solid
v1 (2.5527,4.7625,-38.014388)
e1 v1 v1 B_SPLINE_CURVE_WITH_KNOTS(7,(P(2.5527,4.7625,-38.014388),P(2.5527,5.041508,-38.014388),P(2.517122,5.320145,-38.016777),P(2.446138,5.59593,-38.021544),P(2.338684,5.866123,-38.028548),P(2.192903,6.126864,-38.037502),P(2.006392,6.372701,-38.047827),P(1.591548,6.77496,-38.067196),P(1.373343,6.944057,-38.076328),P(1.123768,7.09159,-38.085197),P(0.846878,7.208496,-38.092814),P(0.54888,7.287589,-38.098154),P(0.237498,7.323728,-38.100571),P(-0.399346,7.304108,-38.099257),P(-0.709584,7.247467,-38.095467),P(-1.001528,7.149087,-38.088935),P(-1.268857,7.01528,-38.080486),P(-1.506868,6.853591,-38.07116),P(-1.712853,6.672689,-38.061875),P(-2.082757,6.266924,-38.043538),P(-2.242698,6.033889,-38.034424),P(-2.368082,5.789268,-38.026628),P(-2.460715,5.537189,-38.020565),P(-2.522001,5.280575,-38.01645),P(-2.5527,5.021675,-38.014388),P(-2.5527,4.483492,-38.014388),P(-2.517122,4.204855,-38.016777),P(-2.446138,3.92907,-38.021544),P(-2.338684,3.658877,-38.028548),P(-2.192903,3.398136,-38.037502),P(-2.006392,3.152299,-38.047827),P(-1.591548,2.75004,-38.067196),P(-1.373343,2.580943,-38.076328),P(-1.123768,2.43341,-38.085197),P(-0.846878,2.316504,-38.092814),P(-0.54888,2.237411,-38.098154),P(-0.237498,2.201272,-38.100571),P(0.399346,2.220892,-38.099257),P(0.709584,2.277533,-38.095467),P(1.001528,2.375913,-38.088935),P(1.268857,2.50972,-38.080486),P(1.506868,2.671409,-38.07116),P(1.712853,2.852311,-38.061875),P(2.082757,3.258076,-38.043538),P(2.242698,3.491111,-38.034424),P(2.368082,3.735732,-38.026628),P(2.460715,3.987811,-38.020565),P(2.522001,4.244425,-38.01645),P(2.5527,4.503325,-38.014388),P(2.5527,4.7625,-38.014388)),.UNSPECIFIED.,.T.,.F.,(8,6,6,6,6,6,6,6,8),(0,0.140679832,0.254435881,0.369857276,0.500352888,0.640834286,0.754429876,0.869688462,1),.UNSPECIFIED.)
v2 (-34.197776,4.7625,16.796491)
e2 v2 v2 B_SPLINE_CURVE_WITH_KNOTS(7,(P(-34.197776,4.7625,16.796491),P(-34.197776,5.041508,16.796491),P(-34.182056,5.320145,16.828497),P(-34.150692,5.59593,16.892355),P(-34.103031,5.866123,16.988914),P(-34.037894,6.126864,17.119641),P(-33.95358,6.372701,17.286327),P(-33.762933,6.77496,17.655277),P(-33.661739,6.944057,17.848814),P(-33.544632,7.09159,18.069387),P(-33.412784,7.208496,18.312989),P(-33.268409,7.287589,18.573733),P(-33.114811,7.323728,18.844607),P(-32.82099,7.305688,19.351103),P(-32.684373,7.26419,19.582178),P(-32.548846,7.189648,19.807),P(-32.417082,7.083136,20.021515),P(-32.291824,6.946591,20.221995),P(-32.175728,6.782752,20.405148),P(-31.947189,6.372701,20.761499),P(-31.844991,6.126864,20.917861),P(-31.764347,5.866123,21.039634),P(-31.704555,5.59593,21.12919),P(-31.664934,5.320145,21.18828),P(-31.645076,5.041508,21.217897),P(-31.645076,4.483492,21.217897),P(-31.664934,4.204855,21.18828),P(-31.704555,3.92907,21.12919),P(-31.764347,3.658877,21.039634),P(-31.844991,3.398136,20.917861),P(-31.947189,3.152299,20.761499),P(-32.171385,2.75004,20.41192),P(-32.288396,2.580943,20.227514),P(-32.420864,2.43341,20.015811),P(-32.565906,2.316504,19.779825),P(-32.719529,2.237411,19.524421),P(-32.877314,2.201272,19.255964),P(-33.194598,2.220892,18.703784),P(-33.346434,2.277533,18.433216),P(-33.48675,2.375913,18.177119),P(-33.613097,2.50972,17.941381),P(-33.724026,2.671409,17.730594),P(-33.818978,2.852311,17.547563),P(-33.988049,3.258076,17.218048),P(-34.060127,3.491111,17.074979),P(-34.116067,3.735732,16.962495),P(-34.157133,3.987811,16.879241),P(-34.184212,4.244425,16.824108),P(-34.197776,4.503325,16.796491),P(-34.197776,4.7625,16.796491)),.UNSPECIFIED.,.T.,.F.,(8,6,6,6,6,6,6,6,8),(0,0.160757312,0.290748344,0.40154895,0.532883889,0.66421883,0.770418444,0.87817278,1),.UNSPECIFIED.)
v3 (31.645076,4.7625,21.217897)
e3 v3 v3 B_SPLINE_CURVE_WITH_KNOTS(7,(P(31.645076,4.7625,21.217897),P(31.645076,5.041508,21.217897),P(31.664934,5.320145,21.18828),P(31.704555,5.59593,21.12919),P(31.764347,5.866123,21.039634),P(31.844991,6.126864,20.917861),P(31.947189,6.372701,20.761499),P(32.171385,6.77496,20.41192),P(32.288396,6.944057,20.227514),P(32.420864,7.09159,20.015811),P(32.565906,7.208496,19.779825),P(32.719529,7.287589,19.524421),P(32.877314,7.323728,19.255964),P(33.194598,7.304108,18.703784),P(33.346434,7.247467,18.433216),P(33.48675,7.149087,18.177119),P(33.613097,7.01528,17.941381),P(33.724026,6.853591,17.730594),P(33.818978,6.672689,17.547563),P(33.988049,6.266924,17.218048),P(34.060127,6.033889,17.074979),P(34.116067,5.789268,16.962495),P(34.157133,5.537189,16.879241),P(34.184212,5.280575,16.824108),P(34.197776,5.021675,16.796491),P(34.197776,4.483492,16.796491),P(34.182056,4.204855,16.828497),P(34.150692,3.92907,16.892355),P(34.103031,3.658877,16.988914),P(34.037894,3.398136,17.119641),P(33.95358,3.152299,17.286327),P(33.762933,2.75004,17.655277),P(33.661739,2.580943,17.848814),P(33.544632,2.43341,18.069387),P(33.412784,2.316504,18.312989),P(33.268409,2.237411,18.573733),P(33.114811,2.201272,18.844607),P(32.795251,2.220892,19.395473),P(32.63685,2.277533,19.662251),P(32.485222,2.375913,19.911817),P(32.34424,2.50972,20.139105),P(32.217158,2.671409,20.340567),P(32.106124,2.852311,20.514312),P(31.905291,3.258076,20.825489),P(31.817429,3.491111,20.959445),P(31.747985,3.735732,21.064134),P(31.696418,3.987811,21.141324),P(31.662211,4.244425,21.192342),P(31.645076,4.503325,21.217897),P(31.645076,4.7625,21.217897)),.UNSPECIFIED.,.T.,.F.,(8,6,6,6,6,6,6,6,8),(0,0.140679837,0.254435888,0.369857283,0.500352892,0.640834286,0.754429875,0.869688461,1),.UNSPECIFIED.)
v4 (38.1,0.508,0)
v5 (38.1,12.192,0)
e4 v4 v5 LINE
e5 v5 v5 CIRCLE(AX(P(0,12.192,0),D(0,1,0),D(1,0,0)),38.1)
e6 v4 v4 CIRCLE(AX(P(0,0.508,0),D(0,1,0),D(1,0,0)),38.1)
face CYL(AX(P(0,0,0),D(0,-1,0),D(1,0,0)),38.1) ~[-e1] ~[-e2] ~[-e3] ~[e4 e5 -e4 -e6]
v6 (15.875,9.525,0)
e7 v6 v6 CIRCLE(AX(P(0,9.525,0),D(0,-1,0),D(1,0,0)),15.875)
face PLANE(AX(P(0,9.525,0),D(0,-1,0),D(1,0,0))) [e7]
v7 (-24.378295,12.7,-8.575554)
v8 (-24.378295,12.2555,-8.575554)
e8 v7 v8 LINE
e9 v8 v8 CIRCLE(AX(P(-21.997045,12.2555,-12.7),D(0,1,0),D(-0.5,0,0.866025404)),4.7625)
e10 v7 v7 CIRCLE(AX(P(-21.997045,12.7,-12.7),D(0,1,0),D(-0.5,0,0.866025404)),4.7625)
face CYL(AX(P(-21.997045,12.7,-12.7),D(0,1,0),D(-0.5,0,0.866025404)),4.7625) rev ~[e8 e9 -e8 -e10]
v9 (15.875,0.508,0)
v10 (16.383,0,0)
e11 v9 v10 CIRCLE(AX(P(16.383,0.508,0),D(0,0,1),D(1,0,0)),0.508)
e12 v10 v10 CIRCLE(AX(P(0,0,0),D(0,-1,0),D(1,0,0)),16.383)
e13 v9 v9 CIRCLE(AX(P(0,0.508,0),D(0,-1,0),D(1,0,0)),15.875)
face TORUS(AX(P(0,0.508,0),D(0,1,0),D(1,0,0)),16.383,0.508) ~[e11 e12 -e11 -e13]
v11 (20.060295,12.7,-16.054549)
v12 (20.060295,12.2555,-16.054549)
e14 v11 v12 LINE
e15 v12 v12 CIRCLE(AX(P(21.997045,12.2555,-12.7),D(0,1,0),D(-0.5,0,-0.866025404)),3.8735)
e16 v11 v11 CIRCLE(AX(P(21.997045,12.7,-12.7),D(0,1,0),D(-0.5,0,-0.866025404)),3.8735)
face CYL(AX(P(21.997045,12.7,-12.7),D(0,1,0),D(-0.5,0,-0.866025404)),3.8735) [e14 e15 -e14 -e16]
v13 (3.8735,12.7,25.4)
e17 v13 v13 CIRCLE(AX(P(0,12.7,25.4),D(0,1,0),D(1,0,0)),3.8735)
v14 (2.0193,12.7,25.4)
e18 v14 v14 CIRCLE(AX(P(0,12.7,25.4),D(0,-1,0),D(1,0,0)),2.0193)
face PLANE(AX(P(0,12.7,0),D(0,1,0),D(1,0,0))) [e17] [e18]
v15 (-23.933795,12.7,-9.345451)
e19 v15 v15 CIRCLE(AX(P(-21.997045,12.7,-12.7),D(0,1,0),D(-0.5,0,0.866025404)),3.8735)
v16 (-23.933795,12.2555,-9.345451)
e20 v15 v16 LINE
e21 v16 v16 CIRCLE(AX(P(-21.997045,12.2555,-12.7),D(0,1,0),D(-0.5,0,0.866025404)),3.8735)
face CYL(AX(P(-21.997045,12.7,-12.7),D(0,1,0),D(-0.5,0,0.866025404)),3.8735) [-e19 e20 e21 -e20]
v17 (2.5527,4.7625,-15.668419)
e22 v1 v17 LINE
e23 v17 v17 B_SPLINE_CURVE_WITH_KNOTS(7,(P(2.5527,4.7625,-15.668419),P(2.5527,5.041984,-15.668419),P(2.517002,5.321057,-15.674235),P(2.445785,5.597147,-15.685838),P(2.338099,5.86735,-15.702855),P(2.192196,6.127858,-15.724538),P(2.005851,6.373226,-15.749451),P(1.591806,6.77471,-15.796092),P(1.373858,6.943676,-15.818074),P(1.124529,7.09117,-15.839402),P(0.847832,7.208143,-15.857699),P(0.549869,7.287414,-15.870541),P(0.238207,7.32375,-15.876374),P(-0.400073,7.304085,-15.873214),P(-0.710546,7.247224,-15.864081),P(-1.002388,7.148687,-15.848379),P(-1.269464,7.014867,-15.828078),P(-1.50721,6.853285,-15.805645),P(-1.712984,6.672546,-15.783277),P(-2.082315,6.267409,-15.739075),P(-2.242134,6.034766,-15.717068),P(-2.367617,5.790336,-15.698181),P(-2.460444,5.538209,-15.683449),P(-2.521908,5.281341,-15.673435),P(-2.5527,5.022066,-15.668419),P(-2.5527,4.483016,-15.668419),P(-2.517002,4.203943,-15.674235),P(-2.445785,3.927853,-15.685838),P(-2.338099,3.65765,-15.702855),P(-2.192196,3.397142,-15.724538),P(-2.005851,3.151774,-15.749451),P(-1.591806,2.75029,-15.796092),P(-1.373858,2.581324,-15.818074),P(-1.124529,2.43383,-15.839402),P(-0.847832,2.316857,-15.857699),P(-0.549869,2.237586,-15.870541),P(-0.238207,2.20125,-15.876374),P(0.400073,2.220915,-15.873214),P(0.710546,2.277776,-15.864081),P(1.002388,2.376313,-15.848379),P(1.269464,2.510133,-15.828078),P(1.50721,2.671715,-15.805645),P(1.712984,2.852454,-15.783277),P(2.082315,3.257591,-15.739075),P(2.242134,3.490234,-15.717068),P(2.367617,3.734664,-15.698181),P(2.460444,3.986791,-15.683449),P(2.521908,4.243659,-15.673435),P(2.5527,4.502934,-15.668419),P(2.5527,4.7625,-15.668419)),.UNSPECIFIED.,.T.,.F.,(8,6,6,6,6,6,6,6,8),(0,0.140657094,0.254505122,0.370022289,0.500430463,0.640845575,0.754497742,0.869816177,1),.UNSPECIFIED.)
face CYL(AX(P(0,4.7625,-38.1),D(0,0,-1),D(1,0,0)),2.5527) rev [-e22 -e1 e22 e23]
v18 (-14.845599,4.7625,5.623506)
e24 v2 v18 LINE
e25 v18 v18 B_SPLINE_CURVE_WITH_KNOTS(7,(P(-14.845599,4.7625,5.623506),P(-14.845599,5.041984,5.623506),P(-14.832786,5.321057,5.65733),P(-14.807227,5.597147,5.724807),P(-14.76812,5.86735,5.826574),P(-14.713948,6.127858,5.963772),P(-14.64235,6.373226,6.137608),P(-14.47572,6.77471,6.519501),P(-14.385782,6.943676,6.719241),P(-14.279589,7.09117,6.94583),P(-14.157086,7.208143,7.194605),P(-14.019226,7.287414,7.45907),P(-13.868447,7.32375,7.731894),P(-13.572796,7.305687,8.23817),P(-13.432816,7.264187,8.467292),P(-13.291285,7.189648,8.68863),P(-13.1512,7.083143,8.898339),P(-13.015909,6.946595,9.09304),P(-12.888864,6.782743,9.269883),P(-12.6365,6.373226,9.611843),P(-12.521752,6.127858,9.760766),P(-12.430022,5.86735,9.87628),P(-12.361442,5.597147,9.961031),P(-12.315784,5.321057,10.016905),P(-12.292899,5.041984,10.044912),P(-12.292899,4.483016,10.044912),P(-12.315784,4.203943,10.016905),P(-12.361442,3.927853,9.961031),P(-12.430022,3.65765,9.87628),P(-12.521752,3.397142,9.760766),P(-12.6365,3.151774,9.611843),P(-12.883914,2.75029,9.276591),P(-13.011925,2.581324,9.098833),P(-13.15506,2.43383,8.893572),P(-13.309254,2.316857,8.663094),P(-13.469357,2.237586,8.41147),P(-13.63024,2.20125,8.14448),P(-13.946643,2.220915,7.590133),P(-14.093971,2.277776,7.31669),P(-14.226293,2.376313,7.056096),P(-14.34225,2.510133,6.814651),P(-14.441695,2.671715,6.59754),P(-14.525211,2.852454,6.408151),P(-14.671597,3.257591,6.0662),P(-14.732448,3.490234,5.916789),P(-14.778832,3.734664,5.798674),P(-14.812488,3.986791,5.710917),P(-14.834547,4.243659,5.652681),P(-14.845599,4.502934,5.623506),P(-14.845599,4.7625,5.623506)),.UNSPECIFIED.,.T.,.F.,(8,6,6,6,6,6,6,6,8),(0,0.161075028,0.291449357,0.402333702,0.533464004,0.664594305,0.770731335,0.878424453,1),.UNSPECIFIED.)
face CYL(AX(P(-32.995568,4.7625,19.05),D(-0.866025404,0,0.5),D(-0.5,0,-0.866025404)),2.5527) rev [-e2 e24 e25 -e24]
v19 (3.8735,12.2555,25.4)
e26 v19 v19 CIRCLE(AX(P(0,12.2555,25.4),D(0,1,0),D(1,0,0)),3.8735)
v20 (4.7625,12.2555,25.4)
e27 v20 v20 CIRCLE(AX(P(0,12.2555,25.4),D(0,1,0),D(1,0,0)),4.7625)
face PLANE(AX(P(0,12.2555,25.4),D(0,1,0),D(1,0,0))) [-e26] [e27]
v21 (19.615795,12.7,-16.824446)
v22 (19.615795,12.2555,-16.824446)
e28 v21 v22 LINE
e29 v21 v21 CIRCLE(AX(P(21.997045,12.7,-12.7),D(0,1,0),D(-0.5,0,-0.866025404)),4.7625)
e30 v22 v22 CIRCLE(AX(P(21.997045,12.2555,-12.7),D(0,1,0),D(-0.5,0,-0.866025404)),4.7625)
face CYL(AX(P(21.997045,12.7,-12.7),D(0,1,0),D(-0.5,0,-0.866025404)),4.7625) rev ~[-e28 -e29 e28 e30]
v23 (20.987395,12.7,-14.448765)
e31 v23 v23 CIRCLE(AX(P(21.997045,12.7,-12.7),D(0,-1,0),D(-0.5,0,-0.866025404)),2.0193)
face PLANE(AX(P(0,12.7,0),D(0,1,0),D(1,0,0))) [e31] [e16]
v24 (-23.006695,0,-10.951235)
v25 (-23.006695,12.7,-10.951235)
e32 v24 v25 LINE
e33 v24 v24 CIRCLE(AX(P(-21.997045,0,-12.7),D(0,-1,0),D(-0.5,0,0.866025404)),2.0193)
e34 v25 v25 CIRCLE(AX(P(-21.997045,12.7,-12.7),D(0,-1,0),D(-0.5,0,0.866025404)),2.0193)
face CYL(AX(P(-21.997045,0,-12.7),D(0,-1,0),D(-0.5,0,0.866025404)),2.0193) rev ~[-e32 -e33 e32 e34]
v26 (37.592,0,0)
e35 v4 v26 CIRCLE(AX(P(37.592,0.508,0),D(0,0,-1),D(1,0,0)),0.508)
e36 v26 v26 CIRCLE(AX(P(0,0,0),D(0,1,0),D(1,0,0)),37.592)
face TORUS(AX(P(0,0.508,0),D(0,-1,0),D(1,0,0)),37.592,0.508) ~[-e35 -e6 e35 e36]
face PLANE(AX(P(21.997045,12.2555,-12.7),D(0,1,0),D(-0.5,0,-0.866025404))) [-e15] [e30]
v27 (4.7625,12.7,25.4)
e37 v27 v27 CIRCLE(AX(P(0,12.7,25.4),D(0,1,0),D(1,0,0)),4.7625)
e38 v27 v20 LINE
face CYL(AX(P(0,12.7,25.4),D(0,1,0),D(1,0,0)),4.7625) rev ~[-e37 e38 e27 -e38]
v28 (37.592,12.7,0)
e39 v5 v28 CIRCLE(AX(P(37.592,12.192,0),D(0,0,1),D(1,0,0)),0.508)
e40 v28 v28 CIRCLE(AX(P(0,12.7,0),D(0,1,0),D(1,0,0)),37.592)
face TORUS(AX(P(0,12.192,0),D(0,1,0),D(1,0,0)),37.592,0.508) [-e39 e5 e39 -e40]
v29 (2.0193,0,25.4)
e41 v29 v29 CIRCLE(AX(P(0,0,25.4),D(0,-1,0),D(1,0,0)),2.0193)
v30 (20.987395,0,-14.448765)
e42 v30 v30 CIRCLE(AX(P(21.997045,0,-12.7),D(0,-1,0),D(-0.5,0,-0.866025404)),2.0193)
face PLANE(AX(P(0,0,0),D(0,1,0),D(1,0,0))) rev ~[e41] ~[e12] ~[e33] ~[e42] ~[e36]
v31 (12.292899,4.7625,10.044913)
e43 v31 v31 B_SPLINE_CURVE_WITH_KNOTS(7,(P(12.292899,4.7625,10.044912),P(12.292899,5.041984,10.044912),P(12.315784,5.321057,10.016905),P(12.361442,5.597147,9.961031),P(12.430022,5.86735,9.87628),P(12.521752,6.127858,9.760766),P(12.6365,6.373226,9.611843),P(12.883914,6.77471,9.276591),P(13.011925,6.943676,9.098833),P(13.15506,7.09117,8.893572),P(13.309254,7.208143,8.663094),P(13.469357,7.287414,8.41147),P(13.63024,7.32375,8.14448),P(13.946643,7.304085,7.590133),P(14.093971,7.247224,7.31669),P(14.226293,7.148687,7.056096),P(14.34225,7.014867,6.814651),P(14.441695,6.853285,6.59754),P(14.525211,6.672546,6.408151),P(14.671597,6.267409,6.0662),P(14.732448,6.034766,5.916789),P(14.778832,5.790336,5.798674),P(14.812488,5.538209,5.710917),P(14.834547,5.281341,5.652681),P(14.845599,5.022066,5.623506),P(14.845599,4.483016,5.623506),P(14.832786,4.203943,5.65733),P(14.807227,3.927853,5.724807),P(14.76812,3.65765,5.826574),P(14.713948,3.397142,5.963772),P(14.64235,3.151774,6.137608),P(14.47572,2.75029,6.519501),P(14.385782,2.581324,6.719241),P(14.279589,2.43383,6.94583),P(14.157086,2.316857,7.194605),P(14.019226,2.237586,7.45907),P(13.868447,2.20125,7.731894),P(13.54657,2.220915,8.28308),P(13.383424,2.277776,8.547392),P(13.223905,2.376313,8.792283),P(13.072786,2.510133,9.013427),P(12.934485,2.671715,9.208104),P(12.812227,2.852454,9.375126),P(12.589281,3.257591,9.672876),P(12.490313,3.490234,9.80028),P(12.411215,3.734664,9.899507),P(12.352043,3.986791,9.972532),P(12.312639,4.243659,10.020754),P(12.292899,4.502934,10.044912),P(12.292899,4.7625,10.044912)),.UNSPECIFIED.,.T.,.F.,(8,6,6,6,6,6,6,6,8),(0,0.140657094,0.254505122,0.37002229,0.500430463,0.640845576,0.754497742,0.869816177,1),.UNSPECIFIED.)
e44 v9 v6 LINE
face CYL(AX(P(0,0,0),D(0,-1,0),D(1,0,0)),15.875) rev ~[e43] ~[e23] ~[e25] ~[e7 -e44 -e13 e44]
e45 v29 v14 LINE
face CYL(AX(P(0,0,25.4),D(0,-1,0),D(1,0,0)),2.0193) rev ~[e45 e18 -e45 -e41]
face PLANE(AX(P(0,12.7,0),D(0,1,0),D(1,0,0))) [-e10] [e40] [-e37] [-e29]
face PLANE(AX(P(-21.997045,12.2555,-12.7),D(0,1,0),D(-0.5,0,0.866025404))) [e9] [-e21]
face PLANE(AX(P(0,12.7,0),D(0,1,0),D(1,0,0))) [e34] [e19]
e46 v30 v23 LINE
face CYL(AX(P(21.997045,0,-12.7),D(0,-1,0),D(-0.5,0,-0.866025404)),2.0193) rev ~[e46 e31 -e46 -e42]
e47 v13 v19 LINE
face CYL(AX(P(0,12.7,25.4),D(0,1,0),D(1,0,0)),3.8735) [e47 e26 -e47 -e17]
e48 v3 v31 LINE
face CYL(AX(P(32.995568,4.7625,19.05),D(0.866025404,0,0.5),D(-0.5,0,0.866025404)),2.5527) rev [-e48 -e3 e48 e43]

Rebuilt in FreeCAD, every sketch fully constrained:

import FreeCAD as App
import Part
import Sketcher

V = App.Vector
Q = App.Units.Quantity


def edges_at(feature, points):
    """Names of the edges that pass closest to the given points."""
    edges = feature.Shape.Edges
    near = lambda p: min(range(len(edges)), key=lambda i: edges[i].distToShape(Part.Vertex(*p))[0])
    return sorted({f"Edge{near(p) + 1}" for p in points})

doc = App.newDocument("Part")
body = doc.addObject("PartDesign::Body", "Body")

# Sketch on XZ plane
sketch1 = body.newObject("Sketcher::SketchObject", "Sketch")
sketch1.AttachmentSupport = (doc.getObject("XZ_Plane"), [""])
sketch1.MapMode = "FlatFace"
sketch1.addGeometry(Part.Circle(V(0, 0, 0), V(0, 0, 1), 38), False)
sketch1.addConstraint([
    Sketcher.Constraint("Coincident", 0, 3, -1, 1),
    Sketcher.Constraint("Diameter", 0, Q("3 in")),
])
pad1 = body.newObject("PartDesign::Pad", "Pad")
pad1.Profile = sketch1
pad1.Length = Q("0.5 in")
pad1.Reversed = True

# Sketch on XZ plane
sketch2 = body.newObject("Sketcher::SketchObject", "Sketch001")
sketch2.AttachmentSupport = (doc.getObject("XZ_Plane"), [""])
sketch2.MapMode = "FlatFace"
sketch2.addGeometry(Part.Circle(V(0, 0, 0), V(0, 0, 1), 16), False)
sketch2.addConstraint([
    Sketcher.Constraint("Coincident", 0, 3, -1, 1),
    Sketcher.Constraint("Diameter", 0, Q("1.25 in")),
])
pocket1 = body.newObject("PartDesign::Pocket", "Pocket")
pocket1.Profile = sketch2
pocket1.Length = Q("0.375 in")

# Sketch on XZ plane
sketch3 = body.newObject("Sketcher::SketchObject", "Sketch002")
sketch3.AttachmentSupport = (doc.getObject("XZ_Plane"), [""])
sketch3.MapMode = "FlatFace"
sketch3.addGeometry(Part.Circle(V(0, 25.4, 0), V(0, 0, 1), 2), False)
sketch3.addConstraint([
    Sketcher.Constraint("PointOnObject", 0, 3, -2),
    Sketcher.Constraint("Diameter", 0, Q("0.159 in")),
    Sketcher.Constraint("DistanceY", -1, 1, 0, 3, Q("1 in")),
])
pocket2 = body.newObject("PartDesign::Pocket", "Pocket001")
pocket2.Profile = sketch3
pocket2.Length = Q("0.5 in")
doc.recompute()

polarpattern = body.newObject("PartDesign::PolarPattern", "PolarPattern")
polarpattern.Originals = [pocket2]
polarpattern.Axis = (doc.getObject("Y_Axis"), [""])
polarpattern.Angle = 360
polarpattern.Occurrences = 3
body.Tip = polarpattern

# Sketch on XY plane
sketch4 = body.newObject("Sketcher::SketchObject", "Sketch003")
sketch4.AttachmentSupport = (doc.getObject("XY_Plane"), [""])
sketch4.MapMode = "FlatFace"
sketch4.AttachmentOffset = App.Placement(V(0, 0, -1.5 * 25.4), App.Rotation())
sketch4.addGeometry(Part.Circle(V(0, 4.8, 0), V(0, 0, 1), 2.6), False)
sketch4.addConstraint([
    Sketcher.Constraint("PointOnObject", 0, 3, -2),
    Sketcher.Constraint("Diameter", 0, Q("0.201 in")),
    Sketcher.Constraint("DistanceY", -1, 1, 0, 3, Q("0.1875 in")),
])
pocket3 = body.newObject("PartDesign::Pocket", "Pocket002")
pocket3.Profile = sketch4
pocket3.Length = 22.431581
pocket3.Reversed = True
doc.recompute()

polarpattern2 = body.newObject("PartDesign::PolarPattern", "PolarPattern001")
polarpattern2.Originals = [pocket3]
polarpattern2.Axis = (doc.getObject("Y_Axis"), [""])
polarpattern2.Angle = 360
polarpattern2.Occurrences = 3
body.Tip = polarpattern2
doc.recompute()

fillet = body.newObject("PartDesign::Fillet", "Fillet")
fillet.Base = (polarpattern2, edges_at(polarpattern2, [(-38.1, 0, 0), (-38.1, 12.7, 0), (-15.875, 0, 0)]))
fillet.Radius = Q("0.02 in")

# Sketch on XZ plane
sketch5 = body.newObject("Sketcher::SketchObject", "Sketch004")
sketch5.AttachmentSupport = (doc.getObject("XZ_Plane"), [""])
sketch5.MapMode = "FlatFace"
sketch5.AttachmentOffset = App.Placement(V(0, 0, -0.5 * 25.4), App.Rotation())
sketch5.addGeometry([
    Part.Circle(V(0, 25.4, 0), V(0, 0, 1), 4.8),
    Part.Circle(V(0, 25.4, 0), V(0, 0, 1), 3.9),
], False)
sketch5.addConstraint([
    Sketcher.Constraint("Coincident", 1, 3, 0, 3),
    Sketcher.Constraint("PointOnObject", 0, 3, -2),
    Sketcher.Constraint("Diameter", 0, Q("0.375 in")),
    Sketcher.Constraint("Diameter", 1, Q("0.305 in")),
    Sketcher.Constraint("DistanceY", -1, 1, 0, 3, Q("1 in")),
])
pocket4 = body.newObject("PartDesign::Pocket", "Pocket003")
pocket4.Profile = sketch5
pocket4.Length = Q("0.0175 in")
pocket4.Reversed = True
doc.recompute()

polarpattern3 = body.newObject("PartDesign::PolarPattern", "PolarPattern002")
polarpattern3.Originals = [pocket4]
polarpattern3.Axis = (doc.getObject("Y_Axis"), [""])
polarpattern3.Angle = 360
polarpattern3.Occurrences = 3
body.Tip = polarpattern3

doc.recompute()
